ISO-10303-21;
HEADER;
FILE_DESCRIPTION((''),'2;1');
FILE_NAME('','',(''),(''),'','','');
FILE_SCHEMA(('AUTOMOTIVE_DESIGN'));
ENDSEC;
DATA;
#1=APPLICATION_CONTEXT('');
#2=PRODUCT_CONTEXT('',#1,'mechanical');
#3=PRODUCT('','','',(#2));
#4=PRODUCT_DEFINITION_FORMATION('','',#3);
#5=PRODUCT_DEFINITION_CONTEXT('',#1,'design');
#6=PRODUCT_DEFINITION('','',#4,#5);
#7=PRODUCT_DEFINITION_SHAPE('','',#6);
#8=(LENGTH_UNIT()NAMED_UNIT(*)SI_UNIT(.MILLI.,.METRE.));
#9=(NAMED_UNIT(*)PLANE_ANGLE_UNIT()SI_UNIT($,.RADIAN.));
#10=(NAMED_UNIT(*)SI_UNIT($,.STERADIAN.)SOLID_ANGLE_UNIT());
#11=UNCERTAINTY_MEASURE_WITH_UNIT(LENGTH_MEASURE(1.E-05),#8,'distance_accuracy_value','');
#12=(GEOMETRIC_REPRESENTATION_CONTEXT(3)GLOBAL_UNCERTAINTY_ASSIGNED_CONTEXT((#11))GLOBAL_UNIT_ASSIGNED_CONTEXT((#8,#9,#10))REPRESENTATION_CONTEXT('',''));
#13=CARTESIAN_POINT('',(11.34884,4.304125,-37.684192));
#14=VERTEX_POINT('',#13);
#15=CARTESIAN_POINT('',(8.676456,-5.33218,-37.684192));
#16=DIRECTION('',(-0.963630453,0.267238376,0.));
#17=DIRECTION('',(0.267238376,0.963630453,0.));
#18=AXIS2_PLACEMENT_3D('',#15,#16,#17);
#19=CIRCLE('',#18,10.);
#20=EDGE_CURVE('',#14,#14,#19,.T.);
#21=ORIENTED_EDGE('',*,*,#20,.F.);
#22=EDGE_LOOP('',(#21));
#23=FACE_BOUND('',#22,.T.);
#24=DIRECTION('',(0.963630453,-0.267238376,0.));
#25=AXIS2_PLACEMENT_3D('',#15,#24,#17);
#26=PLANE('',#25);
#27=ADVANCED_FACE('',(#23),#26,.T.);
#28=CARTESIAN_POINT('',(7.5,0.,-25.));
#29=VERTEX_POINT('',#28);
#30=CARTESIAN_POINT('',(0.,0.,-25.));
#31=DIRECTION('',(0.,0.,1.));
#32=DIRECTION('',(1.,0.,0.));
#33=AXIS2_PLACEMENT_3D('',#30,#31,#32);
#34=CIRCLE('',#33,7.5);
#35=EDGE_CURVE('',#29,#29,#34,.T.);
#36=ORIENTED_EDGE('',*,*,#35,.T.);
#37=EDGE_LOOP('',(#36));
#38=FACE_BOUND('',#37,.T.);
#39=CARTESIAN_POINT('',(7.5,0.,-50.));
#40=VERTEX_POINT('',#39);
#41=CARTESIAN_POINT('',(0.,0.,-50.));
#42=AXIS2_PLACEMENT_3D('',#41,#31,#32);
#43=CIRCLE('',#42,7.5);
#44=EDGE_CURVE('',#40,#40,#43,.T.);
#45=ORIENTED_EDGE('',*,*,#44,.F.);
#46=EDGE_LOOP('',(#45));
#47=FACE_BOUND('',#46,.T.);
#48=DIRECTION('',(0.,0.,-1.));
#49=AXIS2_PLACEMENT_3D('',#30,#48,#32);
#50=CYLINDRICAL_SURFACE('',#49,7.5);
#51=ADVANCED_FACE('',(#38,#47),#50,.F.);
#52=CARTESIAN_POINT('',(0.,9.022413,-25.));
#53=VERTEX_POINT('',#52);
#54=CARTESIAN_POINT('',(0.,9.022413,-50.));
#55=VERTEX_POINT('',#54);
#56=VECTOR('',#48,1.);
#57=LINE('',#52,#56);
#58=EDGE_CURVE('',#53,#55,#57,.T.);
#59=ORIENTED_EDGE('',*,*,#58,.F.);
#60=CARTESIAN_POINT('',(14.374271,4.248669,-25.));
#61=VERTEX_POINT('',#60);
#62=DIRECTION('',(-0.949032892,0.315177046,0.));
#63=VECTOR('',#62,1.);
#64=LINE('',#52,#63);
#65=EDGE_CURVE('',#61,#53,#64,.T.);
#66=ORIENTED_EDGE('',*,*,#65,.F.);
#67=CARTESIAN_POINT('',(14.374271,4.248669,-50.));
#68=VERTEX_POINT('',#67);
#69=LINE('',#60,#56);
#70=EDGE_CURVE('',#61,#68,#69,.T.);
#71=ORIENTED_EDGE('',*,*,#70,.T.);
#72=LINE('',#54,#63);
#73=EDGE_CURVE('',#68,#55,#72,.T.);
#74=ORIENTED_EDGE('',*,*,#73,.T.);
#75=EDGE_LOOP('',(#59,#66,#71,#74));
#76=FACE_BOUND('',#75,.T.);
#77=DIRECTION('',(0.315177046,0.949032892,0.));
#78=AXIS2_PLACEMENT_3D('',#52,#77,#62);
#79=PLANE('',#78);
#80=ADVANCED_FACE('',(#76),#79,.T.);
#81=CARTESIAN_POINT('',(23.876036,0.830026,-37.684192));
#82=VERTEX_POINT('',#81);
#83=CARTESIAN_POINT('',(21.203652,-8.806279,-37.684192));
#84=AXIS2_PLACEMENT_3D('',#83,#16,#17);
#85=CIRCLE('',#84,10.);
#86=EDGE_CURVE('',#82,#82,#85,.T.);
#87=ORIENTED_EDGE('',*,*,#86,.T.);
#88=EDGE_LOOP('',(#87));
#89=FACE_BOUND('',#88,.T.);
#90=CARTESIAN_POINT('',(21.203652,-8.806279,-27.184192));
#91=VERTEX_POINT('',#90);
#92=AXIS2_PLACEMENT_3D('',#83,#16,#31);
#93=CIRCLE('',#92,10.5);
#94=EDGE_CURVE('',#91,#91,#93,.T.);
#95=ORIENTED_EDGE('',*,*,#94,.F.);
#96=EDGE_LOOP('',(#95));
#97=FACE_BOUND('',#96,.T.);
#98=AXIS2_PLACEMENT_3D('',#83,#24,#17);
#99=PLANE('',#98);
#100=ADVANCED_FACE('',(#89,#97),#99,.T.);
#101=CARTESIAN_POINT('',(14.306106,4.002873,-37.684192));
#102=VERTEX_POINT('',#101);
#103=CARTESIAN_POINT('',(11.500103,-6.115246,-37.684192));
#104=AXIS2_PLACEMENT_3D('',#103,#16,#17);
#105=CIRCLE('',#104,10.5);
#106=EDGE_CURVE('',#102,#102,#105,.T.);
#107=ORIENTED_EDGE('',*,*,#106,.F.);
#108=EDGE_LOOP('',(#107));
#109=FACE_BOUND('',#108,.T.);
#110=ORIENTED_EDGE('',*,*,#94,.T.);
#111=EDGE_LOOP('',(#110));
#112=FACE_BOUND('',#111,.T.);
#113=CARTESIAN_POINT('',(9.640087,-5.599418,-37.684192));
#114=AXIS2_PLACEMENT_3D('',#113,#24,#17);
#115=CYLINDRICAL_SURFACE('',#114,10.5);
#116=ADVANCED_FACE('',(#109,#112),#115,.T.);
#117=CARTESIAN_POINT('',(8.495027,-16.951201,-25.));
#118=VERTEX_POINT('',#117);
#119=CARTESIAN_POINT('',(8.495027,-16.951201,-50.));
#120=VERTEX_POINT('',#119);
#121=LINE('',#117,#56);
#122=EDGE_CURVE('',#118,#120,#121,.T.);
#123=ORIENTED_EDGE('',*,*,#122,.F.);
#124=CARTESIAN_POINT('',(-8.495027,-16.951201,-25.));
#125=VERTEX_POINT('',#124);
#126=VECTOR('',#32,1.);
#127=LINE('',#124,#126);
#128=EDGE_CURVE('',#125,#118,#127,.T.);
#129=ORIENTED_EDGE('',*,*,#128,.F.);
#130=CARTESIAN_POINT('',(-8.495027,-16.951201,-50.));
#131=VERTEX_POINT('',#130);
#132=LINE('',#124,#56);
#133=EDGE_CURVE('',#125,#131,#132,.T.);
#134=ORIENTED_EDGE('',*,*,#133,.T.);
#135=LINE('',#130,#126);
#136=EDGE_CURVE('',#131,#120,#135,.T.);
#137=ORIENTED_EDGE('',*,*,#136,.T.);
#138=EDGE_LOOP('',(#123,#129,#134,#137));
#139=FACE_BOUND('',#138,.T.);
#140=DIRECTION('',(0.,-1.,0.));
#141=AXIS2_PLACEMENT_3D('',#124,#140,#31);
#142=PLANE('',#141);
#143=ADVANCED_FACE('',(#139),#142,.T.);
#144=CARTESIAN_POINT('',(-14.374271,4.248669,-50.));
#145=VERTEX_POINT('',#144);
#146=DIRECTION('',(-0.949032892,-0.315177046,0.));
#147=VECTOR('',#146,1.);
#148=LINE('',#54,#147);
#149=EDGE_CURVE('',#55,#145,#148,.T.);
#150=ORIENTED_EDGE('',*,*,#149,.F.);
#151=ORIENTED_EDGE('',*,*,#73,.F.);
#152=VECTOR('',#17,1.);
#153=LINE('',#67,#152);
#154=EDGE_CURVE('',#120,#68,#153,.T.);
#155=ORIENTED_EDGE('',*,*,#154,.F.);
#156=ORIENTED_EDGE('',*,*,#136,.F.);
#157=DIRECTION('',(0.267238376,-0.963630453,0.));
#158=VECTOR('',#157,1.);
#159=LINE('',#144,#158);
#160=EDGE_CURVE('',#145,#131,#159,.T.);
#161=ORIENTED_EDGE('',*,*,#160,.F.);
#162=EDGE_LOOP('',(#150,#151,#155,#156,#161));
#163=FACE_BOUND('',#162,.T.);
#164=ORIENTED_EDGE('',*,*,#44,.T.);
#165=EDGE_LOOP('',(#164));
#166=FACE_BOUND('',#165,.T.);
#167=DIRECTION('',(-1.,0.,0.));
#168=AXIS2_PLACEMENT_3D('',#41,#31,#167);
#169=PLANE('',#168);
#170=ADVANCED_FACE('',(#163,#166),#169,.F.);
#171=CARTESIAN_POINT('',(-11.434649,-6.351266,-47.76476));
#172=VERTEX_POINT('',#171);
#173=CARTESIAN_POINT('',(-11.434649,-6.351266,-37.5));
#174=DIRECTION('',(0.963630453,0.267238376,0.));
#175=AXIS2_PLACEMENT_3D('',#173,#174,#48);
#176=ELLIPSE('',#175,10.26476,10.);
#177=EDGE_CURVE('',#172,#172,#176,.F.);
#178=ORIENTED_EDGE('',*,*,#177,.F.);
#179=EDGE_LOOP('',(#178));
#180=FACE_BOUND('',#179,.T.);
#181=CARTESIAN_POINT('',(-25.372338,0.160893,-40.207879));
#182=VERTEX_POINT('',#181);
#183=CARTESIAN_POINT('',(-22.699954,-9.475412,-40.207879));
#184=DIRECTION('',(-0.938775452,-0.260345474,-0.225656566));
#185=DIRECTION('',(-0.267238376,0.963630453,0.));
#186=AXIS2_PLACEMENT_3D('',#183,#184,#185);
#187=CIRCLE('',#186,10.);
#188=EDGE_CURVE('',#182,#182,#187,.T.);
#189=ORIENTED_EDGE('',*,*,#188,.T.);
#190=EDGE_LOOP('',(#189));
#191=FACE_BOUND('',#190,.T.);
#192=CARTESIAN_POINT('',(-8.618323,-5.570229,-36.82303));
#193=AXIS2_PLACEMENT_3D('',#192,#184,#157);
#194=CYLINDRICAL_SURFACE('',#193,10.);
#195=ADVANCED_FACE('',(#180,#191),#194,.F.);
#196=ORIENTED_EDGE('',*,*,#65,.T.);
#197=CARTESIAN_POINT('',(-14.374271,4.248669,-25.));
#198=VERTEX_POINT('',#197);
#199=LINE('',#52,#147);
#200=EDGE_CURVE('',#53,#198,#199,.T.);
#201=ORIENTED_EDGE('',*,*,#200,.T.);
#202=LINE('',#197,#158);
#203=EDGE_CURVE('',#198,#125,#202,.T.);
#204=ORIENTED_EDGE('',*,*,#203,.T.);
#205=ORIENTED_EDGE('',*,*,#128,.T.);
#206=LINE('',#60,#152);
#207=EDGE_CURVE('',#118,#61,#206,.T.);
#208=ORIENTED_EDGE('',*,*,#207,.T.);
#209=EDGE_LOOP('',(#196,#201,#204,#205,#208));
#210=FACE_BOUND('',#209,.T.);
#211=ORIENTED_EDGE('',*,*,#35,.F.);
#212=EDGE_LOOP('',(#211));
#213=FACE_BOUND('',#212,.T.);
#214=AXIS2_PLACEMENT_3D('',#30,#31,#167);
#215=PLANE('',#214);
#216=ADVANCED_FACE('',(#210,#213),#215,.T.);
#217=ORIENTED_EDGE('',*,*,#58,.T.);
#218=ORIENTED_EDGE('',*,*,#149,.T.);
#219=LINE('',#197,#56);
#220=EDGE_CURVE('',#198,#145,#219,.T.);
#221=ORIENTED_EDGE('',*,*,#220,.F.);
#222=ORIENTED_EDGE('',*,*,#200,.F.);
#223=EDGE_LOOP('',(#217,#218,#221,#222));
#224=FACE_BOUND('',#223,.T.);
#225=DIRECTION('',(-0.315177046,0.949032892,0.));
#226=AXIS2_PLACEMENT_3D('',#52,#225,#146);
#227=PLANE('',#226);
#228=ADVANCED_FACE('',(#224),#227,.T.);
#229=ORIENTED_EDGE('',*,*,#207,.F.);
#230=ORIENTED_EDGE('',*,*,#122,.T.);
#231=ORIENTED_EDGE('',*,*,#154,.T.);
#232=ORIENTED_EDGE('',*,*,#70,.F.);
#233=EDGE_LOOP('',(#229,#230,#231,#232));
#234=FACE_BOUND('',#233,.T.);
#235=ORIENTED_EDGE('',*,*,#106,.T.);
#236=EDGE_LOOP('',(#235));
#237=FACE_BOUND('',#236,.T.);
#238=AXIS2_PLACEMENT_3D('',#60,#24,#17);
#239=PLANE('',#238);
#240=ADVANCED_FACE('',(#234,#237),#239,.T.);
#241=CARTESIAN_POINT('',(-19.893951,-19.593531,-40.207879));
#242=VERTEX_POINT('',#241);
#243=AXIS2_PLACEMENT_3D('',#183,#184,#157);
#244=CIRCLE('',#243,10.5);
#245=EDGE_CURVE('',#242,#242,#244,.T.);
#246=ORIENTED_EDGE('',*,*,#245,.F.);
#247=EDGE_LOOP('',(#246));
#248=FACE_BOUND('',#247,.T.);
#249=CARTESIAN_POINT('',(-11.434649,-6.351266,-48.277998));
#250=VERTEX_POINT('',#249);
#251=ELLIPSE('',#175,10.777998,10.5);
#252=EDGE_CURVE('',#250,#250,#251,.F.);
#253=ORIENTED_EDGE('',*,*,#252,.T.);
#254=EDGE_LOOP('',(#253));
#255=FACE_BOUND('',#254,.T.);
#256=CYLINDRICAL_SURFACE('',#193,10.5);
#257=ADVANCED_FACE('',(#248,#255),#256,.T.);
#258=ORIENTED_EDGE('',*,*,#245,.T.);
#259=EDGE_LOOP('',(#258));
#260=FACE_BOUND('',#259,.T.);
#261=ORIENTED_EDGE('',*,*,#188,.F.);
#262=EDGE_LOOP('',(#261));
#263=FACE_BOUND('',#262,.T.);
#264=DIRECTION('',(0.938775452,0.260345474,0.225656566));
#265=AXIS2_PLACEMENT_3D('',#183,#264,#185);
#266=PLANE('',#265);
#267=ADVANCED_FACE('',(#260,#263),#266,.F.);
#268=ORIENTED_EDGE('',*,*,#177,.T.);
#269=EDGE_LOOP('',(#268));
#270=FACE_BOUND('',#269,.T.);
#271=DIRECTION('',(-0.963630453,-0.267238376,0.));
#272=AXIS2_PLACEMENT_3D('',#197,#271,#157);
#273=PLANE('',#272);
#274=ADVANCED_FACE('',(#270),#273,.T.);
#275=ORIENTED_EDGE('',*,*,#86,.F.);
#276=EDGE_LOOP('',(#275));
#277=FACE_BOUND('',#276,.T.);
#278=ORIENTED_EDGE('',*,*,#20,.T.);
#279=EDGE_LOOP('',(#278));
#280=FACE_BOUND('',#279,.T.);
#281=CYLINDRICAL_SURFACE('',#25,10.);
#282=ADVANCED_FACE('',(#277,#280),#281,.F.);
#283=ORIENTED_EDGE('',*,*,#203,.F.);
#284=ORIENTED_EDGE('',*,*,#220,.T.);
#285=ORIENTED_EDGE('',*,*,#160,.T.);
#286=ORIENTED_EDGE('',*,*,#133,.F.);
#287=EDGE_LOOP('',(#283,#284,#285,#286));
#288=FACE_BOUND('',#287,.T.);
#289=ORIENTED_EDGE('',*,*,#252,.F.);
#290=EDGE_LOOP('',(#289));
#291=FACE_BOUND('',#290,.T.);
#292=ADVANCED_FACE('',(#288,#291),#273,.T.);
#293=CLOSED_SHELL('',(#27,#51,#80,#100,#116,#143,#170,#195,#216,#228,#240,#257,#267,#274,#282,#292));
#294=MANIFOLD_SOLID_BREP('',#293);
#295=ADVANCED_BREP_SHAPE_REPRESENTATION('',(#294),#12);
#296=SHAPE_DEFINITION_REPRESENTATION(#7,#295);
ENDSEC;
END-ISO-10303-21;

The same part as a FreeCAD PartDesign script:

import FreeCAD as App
import Part
import Sketcher
from FreeCAD import Vector
Q = App.Units.Quantity


def add_polygon(sketch, points):
    """Adds a closed chain of lines whose ends are joined by coincident constraints."""
    first, n = sketch.GeometryCount, len(points)
    for a, b in zip(points, points[1:] + points[:1]):
        sketch.addGeometry(Part.LineSegment(App.Vector(*a, 0), App.Vector(*b, 0)), False)
    for i in range(n):
        sketch.addConstraint(Sketcher.Constraint("Coincident", first + i, 2, first + (i + 1) % n, 1))

doc = App.newDocument("Part")
params = doc.addObject("Spreadsheet::Sheet", "Params")
for row, (alias, value) in enumerate([
    ("sketch1_diameter", "15 mm"),
    ("sketch1_length", "22 mm"),
    ("pad1_length", "25 mm"),
    ("sketch2_diameter", "21 mm"),
    ("sketch2_diameter2", "20 mm"),
    ("pad2_length", "3 mm"),
    ("pad2_length2", "12 mm"),
    ("sketch3_diameter", "20 mm"),
    ("pocket1_length", "13 mm"),
    ("sketch4_diameter", "21 mm"),
    ("sketch4_diameter2", "20 mm"),
    ("pad3_length", "12 mm"),
], start=1):
    params.set(f"A{row}", alias)
    params.set(f"B{row}", "=" + value)
    params.setAlias(f"B{row}", alias)

body = doc.addObject("PartDesign::Body", "Body")

# Sketch on XY plane
sketch1 = doc.addObject("Sketcher::SketchObject", "Sketch")
body.addObject(sketch1)
sketch1.AttachmentSupport = (doc.XY_Plane, [""])
sketch1.MapMode = "FlatFace"
add_polygon(sketch1, [(0, 9), (-14, 4), (-8, -17), (8, -17), (14, 4)])  # lines 0-4
sketch1.addGeometry(Part.Circle(Vector(0, 0, 0), Vector(0, 0, 1), 8), False)  # 5
sketch1.addConstraint([
    Sketcher.Constraint("Horizontal", 2),
    Sketcher.Constraint("Coincident", 5, 3, -1, 1),
    Sketcher.Constraint("Symmetric", 0, 2, 3, 2, -2),
    Sketcher.Constraint("PointOnObject", 4, 2, -2),
    Sketcher.Constraint("Equal", 1, 3),
    Sketcher.Constraint("Diameter", 5, Q("15 mm")),
    Sketcher.Constraint("Distance", 1, Q("22 mm")),
    Sketcher.Constraint("Angle", 1, Q("-74.5 deg")),
    Sketcher.Constraint("DistanceY", 1, 2, -1, 1, Q("16.951201 mm")),
    Sketcher.Constraint("DistanceX", 0, 2, 2, 2, Q("22.869298 mm")),
    Sketcher.Constraint("Distance", 0, Q("15.146231 mm")),
])
sketch1.setExpression("Constraints[10]", "Params.sketch1_diameter")
sketch1.setExpression("Constraints[11]", "Params.sketch1_length")
pad1 = doc.addObject("PartDesign::Pad", "Pad")
body.addObject(pad1)
pad1.Profile = sketch1
pad1.setExpression("Length", "Params.pad1_length")
pad1.Reversed = True

# Sketch on an angled plane
sketch2 = doc.addObject("Sketcher::SketchObject", "Sketch001")
body.addObject(sketch2)
sketch2.Placement = App.Placement(Vector(-8.981625, -2.490825, 2.158943), App.Rotation(Vector(0.267238376, -0.963630453, 0), Vector(-0.217449539, -0.060304094, -0.974206916), Vector(0.938775452, 0.260345474, -0.225656566), "ZXY"))
sketch2.addGeometry([
    Part.Circle(Vector(3, 15, 0), Vector(0, 0, 1), 10),
    Part.Circle(Vector(3, 15, 0), Vector(0, 0, 1), 10),
], False)
sketch2.addConstraint([
    Sketcher.Constraint("Coincident", 1, 3, 0, 3),
    Sketcher.Constraint("Diameter", 0, Q("21 mm")),
    Sketcher.Constraint("Diameter", 1, Q("20 mm")),
    Sketcher.Constraint("DistanceX", -1, 1, 0, 3, Q("3.064496 mm")),
    Sketcher.Constraint("DistanceY", -1, 1, 0, 3, Q("15.047053 mm")),
])
sketch2.setExpression("Constraints[1]", "Params.sketch2_diameter")
sketch2.setExpression("Constraints[2]", "Params.sketch2_diameter2")
pad2 = doc.addObject("PartDesign::Pad", "Pad001")
body.addObject(pad2)
pad2.Profile = sketch2
pad2.Type = "TwoLengths"
pad2.setExpression("Length", "Params.pad2_length")
pad2.setExpression("Length2", "Params.pad2_length2")

# Sketch on an angled plane
sketch3 = doc.addObject("Sketcher::SketchObject", "Sketch002")
body.addObject(sketch3)
sketch3.Placement = App.Placement(Vector(21.957149, -6.089256, 0), App.Rotation(Vector(0, 0, -1), Vector(0.267238376, 0.963630453, 0), Vector(0.963630453, -0.267238376, 0), "ZXY"))
sketch3.addGeometry(Part.Circle(Vector(12, -3, 0), Vector(0, 0, 1), 10), False)
sketch3.addConstraint([
    Sketcher.Constraint("Diameter", 0, Q("20 mm")),
    Sketcher.Constraint("DistanceX", -1, 1, 0, 3, Q("12.315808 mm")),
    Sketcher.Constraint("DistanceY", 0, 3, -1, 1, Q("2.819569 mm")),
])
sketch3.setExpression("Constraints[0]", "Params.sketch3_diameter")
pocket1 = doc.addObject("PartDesign::Pocket", "Pocket")
body.addObject(pocket1)
pocket1.Profile = sketch3
pocket1.setExpression("Length", "Params.pocket1_length")

# Sketch on an angled plane
sketch4 = doc.addObject("Sketcher::SketchObject", "Sketch003")
body.addObject(sketch4)
sketch4.Placement = App.Placement(Vector(21.957149, -6.089256, 0), App.Rotation(Vector(0, 0, -1), Vector(0.267238376, 0.963630453, 0), Vector(0.963630453, -0.267238376, 0), "ZXY"))
sketch4.addGeometry([
    Part.Circle(Vector(12, -3, 0), Vector(0, 0, 1), 10),
    Part.Circle(Vector(12, -3, 0), Vector(0, 0, 1), 10),
], False)
sketch4.addConstraint([
    Sketcher.Constraint("Coincident", 1, 3, 0, 3),
    Sketcher.Constraint("Diameter", 0, Q("21 mm")),
    Sketcher.Constraint("Diameter", 1, Q("20 mm")),
    Sketcher.Constraint("DistanceX", -1, 1, 0, 3, Q("12.315808 mm")),
    Sketcher.Constraint("DistanceY", 0, 3, -1, 1, Q("2.819569 mm")),
])
sketch4.setExpression("Constraints[1]", "Params.sketch4_diameter")
sketch4.setExpression("Constraints[2]", "Params.sketch4_diameter2")
pad3 = doc.addObject("PartDesign::Pad", "Pad002")
body.addObject(pad3)
pad3.Profile = sketch4
pad3.setExpression("Length", "Params.pad3_length")
pad3.Reversed = True
body2 = doc.addObject("PartDesign::Body", "Body001")
doc.recompute()

mirroring = doc.addObject("Part::Mirroring", "Mirroring")
mirroring.Source = body
mirroring.Base = Vector(0, 0, -25)
mirroring.Normal = Vector(0, 0, -1)
body2.BaseFeature = mirroring
doc.recompute()
body.Visibility = False
mirroring.Visibility = False

doc.recompute()
